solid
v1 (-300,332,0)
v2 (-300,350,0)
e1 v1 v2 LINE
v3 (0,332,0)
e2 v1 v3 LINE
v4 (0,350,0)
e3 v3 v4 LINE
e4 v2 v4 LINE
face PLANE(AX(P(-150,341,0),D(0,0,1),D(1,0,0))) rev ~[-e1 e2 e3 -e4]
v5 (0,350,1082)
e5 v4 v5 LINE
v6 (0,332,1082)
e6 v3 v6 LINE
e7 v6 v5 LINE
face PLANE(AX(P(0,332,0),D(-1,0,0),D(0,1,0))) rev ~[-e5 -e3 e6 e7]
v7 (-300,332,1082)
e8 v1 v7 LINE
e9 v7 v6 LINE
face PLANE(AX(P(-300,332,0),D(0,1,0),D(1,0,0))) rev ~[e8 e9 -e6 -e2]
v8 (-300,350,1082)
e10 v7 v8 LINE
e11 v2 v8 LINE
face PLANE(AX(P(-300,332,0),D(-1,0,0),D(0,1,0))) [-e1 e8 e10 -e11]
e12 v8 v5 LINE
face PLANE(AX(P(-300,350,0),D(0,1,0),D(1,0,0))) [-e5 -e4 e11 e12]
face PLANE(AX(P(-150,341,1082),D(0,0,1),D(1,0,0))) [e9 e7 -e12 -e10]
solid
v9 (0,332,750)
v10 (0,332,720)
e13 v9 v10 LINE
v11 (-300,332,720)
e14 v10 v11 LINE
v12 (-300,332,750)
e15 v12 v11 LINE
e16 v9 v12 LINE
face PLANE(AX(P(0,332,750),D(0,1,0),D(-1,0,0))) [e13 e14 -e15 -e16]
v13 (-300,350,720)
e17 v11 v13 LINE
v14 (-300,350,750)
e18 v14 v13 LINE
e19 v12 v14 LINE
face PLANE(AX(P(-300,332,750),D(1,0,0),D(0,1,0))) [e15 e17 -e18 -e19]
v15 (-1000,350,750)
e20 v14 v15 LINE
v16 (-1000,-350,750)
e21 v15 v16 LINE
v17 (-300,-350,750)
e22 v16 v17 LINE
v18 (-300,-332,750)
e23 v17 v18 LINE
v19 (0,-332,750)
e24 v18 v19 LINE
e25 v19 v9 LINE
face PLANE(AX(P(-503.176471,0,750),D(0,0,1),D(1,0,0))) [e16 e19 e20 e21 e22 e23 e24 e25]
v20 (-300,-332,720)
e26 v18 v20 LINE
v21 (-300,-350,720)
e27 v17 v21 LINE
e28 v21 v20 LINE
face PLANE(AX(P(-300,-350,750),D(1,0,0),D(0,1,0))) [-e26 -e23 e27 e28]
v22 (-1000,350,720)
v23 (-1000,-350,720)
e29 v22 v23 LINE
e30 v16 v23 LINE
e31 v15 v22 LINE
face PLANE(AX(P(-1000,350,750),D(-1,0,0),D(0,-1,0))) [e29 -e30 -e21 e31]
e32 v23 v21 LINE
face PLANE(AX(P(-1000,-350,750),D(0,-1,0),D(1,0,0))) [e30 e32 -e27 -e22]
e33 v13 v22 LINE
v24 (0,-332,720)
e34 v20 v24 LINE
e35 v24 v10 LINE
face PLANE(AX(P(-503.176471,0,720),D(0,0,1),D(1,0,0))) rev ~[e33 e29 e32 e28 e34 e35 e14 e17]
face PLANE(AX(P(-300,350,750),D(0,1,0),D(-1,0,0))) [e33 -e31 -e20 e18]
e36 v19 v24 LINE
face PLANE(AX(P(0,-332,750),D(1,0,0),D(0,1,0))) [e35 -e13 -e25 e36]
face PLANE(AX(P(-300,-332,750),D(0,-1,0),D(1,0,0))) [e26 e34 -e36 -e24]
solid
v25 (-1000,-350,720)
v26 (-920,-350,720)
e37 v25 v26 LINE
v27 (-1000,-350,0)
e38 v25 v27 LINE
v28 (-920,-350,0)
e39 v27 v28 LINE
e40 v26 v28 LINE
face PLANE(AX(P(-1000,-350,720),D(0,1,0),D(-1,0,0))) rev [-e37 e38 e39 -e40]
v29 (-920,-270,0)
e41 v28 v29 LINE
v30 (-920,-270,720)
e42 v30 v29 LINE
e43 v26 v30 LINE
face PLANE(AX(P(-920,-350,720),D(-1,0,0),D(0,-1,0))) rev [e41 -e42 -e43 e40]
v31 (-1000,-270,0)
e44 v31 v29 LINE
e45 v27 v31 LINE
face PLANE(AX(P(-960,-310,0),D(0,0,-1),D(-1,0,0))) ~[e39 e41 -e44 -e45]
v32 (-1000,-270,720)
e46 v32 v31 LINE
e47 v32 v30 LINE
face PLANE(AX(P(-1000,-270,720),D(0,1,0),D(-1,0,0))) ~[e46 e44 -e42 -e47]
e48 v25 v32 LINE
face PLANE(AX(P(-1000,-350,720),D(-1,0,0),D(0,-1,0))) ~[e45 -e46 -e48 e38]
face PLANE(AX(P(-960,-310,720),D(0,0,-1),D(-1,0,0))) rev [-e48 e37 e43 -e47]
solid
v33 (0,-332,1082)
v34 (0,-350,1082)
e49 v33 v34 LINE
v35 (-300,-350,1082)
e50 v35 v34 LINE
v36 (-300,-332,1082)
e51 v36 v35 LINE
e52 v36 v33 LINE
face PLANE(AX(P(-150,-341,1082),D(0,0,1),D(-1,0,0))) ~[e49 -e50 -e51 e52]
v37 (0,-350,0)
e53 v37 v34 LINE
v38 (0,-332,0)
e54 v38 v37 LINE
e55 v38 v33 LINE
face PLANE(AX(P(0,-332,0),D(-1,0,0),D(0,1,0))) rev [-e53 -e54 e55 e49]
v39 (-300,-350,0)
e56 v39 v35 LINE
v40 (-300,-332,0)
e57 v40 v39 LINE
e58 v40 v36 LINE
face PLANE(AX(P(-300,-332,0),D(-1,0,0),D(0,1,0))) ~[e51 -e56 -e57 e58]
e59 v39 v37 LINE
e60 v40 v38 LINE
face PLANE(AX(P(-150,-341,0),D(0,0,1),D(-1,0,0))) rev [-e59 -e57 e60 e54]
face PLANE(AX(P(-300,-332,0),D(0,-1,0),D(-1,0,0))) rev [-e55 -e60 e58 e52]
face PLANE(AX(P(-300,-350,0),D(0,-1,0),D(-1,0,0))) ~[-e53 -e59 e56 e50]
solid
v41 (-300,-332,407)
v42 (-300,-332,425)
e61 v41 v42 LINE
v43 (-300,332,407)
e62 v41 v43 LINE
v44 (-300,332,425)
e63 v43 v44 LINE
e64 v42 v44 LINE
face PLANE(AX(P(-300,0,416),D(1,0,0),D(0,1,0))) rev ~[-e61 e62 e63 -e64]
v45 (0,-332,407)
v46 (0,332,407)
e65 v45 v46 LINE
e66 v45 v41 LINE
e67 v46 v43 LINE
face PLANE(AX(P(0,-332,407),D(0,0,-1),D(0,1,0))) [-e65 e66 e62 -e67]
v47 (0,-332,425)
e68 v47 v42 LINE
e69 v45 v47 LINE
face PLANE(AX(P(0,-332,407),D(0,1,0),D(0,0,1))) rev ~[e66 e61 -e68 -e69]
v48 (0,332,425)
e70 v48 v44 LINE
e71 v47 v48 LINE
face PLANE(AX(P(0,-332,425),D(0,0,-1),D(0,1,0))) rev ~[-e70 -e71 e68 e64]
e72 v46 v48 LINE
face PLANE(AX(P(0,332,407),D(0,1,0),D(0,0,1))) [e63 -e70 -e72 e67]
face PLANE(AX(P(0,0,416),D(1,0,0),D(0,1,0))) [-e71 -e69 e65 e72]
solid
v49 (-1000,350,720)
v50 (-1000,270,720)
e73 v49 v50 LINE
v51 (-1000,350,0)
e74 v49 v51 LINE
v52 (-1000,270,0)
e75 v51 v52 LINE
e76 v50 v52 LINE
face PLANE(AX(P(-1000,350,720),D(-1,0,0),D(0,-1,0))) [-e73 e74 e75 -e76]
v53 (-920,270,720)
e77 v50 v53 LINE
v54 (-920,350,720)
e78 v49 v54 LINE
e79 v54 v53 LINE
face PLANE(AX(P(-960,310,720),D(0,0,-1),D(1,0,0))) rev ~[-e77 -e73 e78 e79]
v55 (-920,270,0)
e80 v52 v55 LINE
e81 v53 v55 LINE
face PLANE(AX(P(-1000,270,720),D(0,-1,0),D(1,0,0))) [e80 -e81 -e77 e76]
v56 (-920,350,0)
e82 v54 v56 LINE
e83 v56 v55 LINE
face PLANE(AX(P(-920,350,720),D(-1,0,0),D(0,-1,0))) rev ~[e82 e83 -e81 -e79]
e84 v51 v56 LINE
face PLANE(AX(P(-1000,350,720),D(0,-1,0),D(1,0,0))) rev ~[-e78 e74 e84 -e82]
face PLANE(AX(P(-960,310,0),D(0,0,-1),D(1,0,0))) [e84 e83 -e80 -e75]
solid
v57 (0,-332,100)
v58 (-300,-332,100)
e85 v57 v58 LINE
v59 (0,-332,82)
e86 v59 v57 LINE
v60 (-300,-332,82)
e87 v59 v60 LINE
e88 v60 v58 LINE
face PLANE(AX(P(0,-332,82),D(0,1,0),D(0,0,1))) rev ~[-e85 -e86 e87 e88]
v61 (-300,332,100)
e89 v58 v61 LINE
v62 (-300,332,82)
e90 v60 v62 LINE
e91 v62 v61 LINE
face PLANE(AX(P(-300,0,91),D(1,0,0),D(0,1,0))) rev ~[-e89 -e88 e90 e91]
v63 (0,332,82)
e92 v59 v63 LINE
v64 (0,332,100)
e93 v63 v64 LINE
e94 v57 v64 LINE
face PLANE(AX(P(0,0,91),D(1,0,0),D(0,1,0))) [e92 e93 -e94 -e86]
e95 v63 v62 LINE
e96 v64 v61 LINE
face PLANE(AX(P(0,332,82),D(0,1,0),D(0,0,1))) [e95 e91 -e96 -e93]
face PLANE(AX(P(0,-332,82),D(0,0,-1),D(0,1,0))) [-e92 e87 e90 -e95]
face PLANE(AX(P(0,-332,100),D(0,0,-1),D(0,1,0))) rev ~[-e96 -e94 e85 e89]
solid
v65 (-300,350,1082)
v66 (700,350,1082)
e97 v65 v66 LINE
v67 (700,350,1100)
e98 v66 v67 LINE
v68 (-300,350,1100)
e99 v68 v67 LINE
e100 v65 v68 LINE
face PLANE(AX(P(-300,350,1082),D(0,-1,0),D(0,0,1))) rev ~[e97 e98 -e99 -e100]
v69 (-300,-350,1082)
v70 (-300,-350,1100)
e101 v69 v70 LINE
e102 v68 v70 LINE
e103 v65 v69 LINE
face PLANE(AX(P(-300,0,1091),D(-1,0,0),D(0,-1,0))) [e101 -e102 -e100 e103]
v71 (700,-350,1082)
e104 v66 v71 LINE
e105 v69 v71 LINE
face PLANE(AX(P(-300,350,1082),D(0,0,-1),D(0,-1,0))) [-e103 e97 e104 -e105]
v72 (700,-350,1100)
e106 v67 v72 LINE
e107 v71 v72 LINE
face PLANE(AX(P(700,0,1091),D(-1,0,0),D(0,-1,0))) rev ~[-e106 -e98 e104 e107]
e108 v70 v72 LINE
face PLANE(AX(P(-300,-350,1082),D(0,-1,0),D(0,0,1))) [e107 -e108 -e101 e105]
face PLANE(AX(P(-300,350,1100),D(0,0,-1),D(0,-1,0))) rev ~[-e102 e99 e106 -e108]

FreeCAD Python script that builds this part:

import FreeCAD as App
import Part
import Sketcher

V = App.Vector
Q = App.Units.Quantity


def add_polygon(sketch, points):
    """Adds a closed chain of lines whose ends are joined by coincident constraints."""
    first, n = sketch.GeometryCount, len(points)
    for a, b in zip(points, points[1:] + points[:1]):
        sketch.addGeometry(Part.LineSegment(App.Vector(*a, 0), App.Vector(*b, 0)), False)
    for i in range(n):
        sketch.addConstraint(Sketcher.Constraint("Coincident", first + i, 2, first + (i + 1) % n, 1))

doc = App.newDocument("Part")
body = doc.addObject("PartDesign::Body", "Body")

# Sketch on XY plane
sketch1 = body.newObject("Sketcher::SketchObject", "Sketch")
sketch1.AttachmentSupport = (doc.getObject("XY_Plane"), [""])
sketch1.MapMode = "FlatFace"
add_polygon(sketch1, [(-300, 350), (-300, 332), (0, 332), (0, 350)])  # lines 0-3
sketch1.addConstraint([
    Sketcher.Constraint("Vertical", 0),
    Sketcher.Constraint("Horizontal", 1),
    Sketcher.Constraint("Vertical", 2),
    Sketcher.Constraint("Horizontal", 3),
    Sketcher.Constraint("PointOnObject", 1, 2, -2),
    Sketcher.Constraint("DistanceX", 1, 1, 1, 2, Q("300 mm")),
    Sketcher.Constraint("DistanceY", 0, 2, 0, 1, Q("18 mm")),
    Sketcher.Constraint("DistanceY", -1, 1, 0, 2, Q("332 mm")),
])
pad1 = body.newObject("PartDesign::Pad", "Pad")
pad1.Profile = sketch1
pad1.Length = 1082
body2 = doc.addObject("PartDesign::Body", "Body001")
doc.recompute()

mirroring = doc.addObject("Part::Mirroring", "Mirroring")
mirroring.Source = body
mirroring.Base = V(0, 0, 0)
mirroring.Normal = V(0, -1, 0)
body2.BaseFeature = mirroring
doc.recompute()
body3 = doc.addObject("PartDesign::Body", "Body002")

# Sketch on YZ plane
sketch2 = body3.newObject("Sketcher::SketchObject", "Sketch001")
sketch2.AttachmentSupport = (doc.getObject("YZ_Plane002"), [""])
sketch2.MapMode = "FlatFace"
sketch2.AttachmentOffset = App.Placement(V(0, 0, -300), App.Rotation())
add_polygon(sketch2, [(350, 1100), (350, 1082), (-350, 1082), (-350, 1100)])  # lines 0-3
sketch2.addConstraint([
    Sketcher.Constraint("Vertical", 0),
    Sketcher.Constraint("Horizontal", 1),
    Sketcher.Constraint("Vertical", 2),
    Sketcher.Constraint("Horizontal", 3),
    Sketcher.Constraint("DistanceX", 1, 2, 1, 1, Q("700 mm")),
    Sketcher.Constraint("DistanceY", 0, 2, 0, 1, Q("18 mm")),
    Sketcher.Constraint("DistanceX", -1, 1, 0, 2, Q("350 mm")),
    Sketcher.Constraint("DistanceY", -1, 1, 0, 2, Q("1082 mm")),
])
pad2 = body3.newObject("PartDesign::Pad", "Pad001")
pad2.Profile = sketch2
pad2.Length = 1000
body4 = doc.addObject("PartDesign::Body", "Body003")

# Sketch on XY plane
sketch3 = body4.newObject("Sketcher::SketchObject", "Sketch002")
sketch3.AttachmentSupport = (doc.getObject("XY_Plane003"), [""])
sketch3.MapMode = "FlatFace"
sketch3.AttachmentOffset = App.Placement(V(0, 0, 750), App.Rotation())
add_polygon(sketch3, [(0, -332), (0, 332), (-300, 332), (-300, 350), (-1000, 350), (-1000, -350), (-300, -350), (-300, -332)])  # lines 0-7
sketch3.addConstraint([
    Sketcher.Constraint("Vertical", 0),
    Sketcher.Constraint("Horizontal", 1),
    Sketcher.Constraint("Vertical", 2),
    Sketcher.Constraint("Horizontal", 3),
    Sketcher.Constraint("Vertical", 4),
    Sketcher.Constraint("Horizontal", 5),
    Sketcher.Constraint("Vertical", 6),
    Sketcher.Constraint("Horizontal", 7),
    Sketcher.Constraint("Symmetric", 0, 2, 7, 2, -1, 1),
    Sketcher.Constraint("Symmetric", 2, 2, 5, 2, -1),
    Sketcher.Constraint("Equal", 5, 4),
    Sketcher.Constraint("DistanceX", 1, 2, 1, 1, Q("300 mm")),
    Sketcher.Constraint("DistanceX", 3, 2, 3, 1, Q("700 mm")),
    Sketcher.Constraint("DistanceY", 0, 1, 0, 2, Q("664 mm")),
])
pad3 = body4.newObject("PartDesign::Pad", "Pad002")
pad3.Profile = sketch3
pad3.Length = 30
pad3.Reversed = True
body5 = doc.addObject("PartDesign::Body", "Body004")
body5.AllowCompound = True

# Sketch on YZ plane
sketch4 = body5.newObject("Sketcher::SketchObject", "Sketch003")
sketch4.AttachmentSupport = (doc.getObject("YZ_Plane004"), [""])
sketch4.MapMode = "FlatFace"
add_polygon(sketch4, [(-332, 100), (-332, 82), (332, 82), (332, 100)])  # lines 0-3
add_polygon(sketch4, [(-332, 425), (-332, 407), (332, 407), (332, 425)])  # lines 4-7
sketch4.addConstraint([
    Sketcher.Constraint("Vertical", 0),
    Sketcher.Constraint("Horizontal", 1),
    Sketcher.Constraint("Vertical", 2),
    Sketcher.Constraint("Horizontal", 3),
    Sketcher.Constraint("Vertical", 4),
    Sketcher.Constraint("Horizontal", 5),
    Sketcher.Constraint("Vertical", 6),
    Sketcher.Constraint("Horizontal", 7),
    Sketcher.Constraint("Vertical", 3, 2, 4, 2),
    Sketcher.Constraint("Vertical", 2, 2, 5, 2),
    Sketcher.Constraint("Equal", 2, 4),
    Sketcher.Constraint("DistanceX", 1, 1, 1, 2, Q("664 mm")),
    Sketcher.Constraint("DistanceY", 0, 2, 0, 1, Q("18 mm")),
    Sketcher.Constraint("DistanceX", 0, 2, -1, 1, Q("332 mm")),
    Sketcher.Constraint("DistanceY", -1, 1, 0, 2, Q("82 mm")),
    Sketcher.Constraint("DistanceY", -1, 1, 4, 2, Q("407 mm")),
])
pad4 = body5.newObject("PartDesign::Pad", "Pad003")
pad4.Profile = sketch4
pad4.Length = 300
pad4.Reversed = True
body6 = doc.addObject("PartDesign::Body", "Body005")

# Sketch on XY plane
sketch5 = body6.newObject("Sketcher::SketchObject", "Sketch004")
sketch5.AttachmentSupport = (doc.getObject("XY_Plane005"), [""])
sketch5.MapMode = "FlatFace"
sketch5.AttachmentOffset = App.Placement(V(0, 0, 720), App.Rotation())
add_polygon(sketch5, [(-1000, 270), (-1000, 350), (-920, 350), (-920, 270)])  # lines 0-3
sketch5.addConstraint([
    Sketcher.Constraint("Vertical", 0),
    Sketcher.Constraint("Horizontal", 1),
    Sketcher.Constraint("Vertical", 2),
    Sketcher.Constraint("Horizontal", 3),
    Sketcher.Constraint("Equal", 3, 0),
    Sketcher.Constraint("DistanceX", 1, 1, 1, 2, Q("80 mm")),
    Sketcher.Constraint("DistanceX", 0, 2, -1, 1, Q("1000 mm")),
    Sketcher.Constraint("DistanceY", -1, 1, 0, 2, Q("350 mm")),
])
pad5 = body6.newObject("PartDesign::Pad", "Pad004")
pad5.Profile = sketch5
pad5.Length = 720
pad5.Reversed = True
body7 = doc.addObject("PartDesign::Body", "Body006")
doc.recompute()

mirroring2 = doc.addObject("Part::Mirroring", "Mirroring001")
mirroring2.Source = body6
mirroring2.Base = V(0, 0, 0)
mirroring2.Normal = V(0, -1, 0)
body7.BaseFeature = mirroring2
doc.recompute()
mirroring.Visibility = False
mirroring2.Visibility = False

doc.recompute()
